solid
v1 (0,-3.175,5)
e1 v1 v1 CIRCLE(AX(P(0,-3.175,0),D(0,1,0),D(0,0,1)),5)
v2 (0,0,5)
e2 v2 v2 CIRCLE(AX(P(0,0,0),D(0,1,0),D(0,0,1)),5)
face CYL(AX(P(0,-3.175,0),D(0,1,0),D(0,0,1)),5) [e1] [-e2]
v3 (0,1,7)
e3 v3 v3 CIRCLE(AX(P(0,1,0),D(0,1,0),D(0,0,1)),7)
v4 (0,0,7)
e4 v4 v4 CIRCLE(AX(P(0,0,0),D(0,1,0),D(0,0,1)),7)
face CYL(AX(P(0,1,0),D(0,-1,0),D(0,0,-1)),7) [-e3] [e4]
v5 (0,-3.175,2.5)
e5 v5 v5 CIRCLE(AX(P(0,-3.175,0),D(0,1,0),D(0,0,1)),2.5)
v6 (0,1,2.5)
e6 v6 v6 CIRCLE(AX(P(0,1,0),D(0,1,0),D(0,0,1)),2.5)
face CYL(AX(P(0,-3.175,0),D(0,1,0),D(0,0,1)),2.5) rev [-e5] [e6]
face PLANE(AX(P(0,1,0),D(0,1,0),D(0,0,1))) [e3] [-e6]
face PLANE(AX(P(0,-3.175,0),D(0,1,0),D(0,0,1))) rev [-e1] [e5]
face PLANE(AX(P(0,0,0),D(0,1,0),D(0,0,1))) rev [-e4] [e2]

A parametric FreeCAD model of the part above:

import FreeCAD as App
import Part
import Sketcher

doc = App.newDocument("Part")
body = doc.addObject("PartDesign::Body", "Body")

sketch1 = doc.addObject("Sketcher::SketchObject", "Sketch")
body.addObject(sketch1)
sketch1.AttachmentSupport = (doc.XZ_Plane, [""])
sketch1.MapMode = "FlatFace"
sketch1.addGeometry(Part.Circle(App.Vector(0, 0, 0), App.Vector(0, 0, 1), 5), False)
sketch1.addGeometry(Part.Circle(App.Vector(0, 0, 0), App.Vector(0, 0, 1), 2.5), False)
sketch1.addConstraint(Sketcher.Constraint("Coincident", 0, 3, -1, 1))
sketch1.addConstraint(Sketcher.Constraint("Coincident", 1, 3, -1, 1))
sketch1.addConstraint(Sketcher.Constraint("Diameter", 0, 10.0))
sketch1.addConstraint(Sketcher.Constraint("Diameter", 1, 5.0))
pad1 = doc.addObject("PartDesign::Pad", "Pad")
body.addObject(pad1)
pad1.Profile = sketch1
pad1.Length = 3.175

sketch2 = doc.addObject("Sketcher::SketchObject", "Sketch001")
body.addObject(sketch2)
sketch2.AttachmentSupport = (doc.XZ_Plane, [""])
sketch2.MapMode = "FlatFace"
sketch2.AttachmentOffset = App.Placement(App.Vector(0, 0, -1), App.Rotation())
sketch2.addGeometry(Part.Circle(App.Vector(0, 0, 0), App.Vector(0, 0, 1), 7), False)
sketch2.addGeometry(Part.Circle(App.Vector(0, 0, 0), App.Vector(0, 0, 1), 2.5), False)
sketch2.addConstraint(Sketcher.Constraint("Coincident", 0, 3, -1, 1))
sketch2.addConstraint(Sketcher.Constraint("Coincident", 1, 3, -1, 1))
sketch2.addConstraint(Sketcher.Constraint("Diameter", 0, 14.0))
sketch2.addConstraint(Sketcher.Constraint("Diameter", 1, 5.0))
pad2 = doc.addObject("PartDesign::Pad", "Pad001")
body.addObject(pad2)
pad2.Profile = sketch2
pad2.Length = 1

doc.recompute()
